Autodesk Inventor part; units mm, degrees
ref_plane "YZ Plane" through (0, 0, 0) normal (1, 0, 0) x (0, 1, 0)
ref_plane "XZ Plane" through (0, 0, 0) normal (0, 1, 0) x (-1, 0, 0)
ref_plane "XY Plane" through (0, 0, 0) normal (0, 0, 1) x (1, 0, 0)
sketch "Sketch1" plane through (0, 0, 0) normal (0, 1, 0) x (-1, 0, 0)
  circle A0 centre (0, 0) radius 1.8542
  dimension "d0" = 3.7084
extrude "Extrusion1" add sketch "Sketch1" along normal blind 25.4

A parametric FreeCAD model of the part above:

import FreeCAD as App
import Part
import Sketcher
Q = App.Units.Quantity

doc = App.newDocument("Part")
body = doc.addObject("PartDesign::Body", "Body")

# Sketch on XZ plane
sketch1 = body.newObject("Sketcher::SketchObject", "Sketch")
sketch1.AttachmentSupport = (doc.getObject("XZ_Plane"), [""])
sketch1.MapMode = "FlatFace"
sketch1.addGeometry(Part.Circle(App.Vector(0, 0, 0), App.Vector(0, 0, 1), 1.8542), False)
sketch1.addConstraint(Sketcher.Constraint("Coincident", 0, 3, -1, 1))
sketch1.addConstraint(Sketcher.Constraint("Diameter", 0, Q("0.146 in")))
pad1 = body.newObject("PartDesign::Pad", "Pad")
pad1.Profile = sketch1
pad1.Length = Q("1 in")
pad1.Reversed = True

doc.recompute()
